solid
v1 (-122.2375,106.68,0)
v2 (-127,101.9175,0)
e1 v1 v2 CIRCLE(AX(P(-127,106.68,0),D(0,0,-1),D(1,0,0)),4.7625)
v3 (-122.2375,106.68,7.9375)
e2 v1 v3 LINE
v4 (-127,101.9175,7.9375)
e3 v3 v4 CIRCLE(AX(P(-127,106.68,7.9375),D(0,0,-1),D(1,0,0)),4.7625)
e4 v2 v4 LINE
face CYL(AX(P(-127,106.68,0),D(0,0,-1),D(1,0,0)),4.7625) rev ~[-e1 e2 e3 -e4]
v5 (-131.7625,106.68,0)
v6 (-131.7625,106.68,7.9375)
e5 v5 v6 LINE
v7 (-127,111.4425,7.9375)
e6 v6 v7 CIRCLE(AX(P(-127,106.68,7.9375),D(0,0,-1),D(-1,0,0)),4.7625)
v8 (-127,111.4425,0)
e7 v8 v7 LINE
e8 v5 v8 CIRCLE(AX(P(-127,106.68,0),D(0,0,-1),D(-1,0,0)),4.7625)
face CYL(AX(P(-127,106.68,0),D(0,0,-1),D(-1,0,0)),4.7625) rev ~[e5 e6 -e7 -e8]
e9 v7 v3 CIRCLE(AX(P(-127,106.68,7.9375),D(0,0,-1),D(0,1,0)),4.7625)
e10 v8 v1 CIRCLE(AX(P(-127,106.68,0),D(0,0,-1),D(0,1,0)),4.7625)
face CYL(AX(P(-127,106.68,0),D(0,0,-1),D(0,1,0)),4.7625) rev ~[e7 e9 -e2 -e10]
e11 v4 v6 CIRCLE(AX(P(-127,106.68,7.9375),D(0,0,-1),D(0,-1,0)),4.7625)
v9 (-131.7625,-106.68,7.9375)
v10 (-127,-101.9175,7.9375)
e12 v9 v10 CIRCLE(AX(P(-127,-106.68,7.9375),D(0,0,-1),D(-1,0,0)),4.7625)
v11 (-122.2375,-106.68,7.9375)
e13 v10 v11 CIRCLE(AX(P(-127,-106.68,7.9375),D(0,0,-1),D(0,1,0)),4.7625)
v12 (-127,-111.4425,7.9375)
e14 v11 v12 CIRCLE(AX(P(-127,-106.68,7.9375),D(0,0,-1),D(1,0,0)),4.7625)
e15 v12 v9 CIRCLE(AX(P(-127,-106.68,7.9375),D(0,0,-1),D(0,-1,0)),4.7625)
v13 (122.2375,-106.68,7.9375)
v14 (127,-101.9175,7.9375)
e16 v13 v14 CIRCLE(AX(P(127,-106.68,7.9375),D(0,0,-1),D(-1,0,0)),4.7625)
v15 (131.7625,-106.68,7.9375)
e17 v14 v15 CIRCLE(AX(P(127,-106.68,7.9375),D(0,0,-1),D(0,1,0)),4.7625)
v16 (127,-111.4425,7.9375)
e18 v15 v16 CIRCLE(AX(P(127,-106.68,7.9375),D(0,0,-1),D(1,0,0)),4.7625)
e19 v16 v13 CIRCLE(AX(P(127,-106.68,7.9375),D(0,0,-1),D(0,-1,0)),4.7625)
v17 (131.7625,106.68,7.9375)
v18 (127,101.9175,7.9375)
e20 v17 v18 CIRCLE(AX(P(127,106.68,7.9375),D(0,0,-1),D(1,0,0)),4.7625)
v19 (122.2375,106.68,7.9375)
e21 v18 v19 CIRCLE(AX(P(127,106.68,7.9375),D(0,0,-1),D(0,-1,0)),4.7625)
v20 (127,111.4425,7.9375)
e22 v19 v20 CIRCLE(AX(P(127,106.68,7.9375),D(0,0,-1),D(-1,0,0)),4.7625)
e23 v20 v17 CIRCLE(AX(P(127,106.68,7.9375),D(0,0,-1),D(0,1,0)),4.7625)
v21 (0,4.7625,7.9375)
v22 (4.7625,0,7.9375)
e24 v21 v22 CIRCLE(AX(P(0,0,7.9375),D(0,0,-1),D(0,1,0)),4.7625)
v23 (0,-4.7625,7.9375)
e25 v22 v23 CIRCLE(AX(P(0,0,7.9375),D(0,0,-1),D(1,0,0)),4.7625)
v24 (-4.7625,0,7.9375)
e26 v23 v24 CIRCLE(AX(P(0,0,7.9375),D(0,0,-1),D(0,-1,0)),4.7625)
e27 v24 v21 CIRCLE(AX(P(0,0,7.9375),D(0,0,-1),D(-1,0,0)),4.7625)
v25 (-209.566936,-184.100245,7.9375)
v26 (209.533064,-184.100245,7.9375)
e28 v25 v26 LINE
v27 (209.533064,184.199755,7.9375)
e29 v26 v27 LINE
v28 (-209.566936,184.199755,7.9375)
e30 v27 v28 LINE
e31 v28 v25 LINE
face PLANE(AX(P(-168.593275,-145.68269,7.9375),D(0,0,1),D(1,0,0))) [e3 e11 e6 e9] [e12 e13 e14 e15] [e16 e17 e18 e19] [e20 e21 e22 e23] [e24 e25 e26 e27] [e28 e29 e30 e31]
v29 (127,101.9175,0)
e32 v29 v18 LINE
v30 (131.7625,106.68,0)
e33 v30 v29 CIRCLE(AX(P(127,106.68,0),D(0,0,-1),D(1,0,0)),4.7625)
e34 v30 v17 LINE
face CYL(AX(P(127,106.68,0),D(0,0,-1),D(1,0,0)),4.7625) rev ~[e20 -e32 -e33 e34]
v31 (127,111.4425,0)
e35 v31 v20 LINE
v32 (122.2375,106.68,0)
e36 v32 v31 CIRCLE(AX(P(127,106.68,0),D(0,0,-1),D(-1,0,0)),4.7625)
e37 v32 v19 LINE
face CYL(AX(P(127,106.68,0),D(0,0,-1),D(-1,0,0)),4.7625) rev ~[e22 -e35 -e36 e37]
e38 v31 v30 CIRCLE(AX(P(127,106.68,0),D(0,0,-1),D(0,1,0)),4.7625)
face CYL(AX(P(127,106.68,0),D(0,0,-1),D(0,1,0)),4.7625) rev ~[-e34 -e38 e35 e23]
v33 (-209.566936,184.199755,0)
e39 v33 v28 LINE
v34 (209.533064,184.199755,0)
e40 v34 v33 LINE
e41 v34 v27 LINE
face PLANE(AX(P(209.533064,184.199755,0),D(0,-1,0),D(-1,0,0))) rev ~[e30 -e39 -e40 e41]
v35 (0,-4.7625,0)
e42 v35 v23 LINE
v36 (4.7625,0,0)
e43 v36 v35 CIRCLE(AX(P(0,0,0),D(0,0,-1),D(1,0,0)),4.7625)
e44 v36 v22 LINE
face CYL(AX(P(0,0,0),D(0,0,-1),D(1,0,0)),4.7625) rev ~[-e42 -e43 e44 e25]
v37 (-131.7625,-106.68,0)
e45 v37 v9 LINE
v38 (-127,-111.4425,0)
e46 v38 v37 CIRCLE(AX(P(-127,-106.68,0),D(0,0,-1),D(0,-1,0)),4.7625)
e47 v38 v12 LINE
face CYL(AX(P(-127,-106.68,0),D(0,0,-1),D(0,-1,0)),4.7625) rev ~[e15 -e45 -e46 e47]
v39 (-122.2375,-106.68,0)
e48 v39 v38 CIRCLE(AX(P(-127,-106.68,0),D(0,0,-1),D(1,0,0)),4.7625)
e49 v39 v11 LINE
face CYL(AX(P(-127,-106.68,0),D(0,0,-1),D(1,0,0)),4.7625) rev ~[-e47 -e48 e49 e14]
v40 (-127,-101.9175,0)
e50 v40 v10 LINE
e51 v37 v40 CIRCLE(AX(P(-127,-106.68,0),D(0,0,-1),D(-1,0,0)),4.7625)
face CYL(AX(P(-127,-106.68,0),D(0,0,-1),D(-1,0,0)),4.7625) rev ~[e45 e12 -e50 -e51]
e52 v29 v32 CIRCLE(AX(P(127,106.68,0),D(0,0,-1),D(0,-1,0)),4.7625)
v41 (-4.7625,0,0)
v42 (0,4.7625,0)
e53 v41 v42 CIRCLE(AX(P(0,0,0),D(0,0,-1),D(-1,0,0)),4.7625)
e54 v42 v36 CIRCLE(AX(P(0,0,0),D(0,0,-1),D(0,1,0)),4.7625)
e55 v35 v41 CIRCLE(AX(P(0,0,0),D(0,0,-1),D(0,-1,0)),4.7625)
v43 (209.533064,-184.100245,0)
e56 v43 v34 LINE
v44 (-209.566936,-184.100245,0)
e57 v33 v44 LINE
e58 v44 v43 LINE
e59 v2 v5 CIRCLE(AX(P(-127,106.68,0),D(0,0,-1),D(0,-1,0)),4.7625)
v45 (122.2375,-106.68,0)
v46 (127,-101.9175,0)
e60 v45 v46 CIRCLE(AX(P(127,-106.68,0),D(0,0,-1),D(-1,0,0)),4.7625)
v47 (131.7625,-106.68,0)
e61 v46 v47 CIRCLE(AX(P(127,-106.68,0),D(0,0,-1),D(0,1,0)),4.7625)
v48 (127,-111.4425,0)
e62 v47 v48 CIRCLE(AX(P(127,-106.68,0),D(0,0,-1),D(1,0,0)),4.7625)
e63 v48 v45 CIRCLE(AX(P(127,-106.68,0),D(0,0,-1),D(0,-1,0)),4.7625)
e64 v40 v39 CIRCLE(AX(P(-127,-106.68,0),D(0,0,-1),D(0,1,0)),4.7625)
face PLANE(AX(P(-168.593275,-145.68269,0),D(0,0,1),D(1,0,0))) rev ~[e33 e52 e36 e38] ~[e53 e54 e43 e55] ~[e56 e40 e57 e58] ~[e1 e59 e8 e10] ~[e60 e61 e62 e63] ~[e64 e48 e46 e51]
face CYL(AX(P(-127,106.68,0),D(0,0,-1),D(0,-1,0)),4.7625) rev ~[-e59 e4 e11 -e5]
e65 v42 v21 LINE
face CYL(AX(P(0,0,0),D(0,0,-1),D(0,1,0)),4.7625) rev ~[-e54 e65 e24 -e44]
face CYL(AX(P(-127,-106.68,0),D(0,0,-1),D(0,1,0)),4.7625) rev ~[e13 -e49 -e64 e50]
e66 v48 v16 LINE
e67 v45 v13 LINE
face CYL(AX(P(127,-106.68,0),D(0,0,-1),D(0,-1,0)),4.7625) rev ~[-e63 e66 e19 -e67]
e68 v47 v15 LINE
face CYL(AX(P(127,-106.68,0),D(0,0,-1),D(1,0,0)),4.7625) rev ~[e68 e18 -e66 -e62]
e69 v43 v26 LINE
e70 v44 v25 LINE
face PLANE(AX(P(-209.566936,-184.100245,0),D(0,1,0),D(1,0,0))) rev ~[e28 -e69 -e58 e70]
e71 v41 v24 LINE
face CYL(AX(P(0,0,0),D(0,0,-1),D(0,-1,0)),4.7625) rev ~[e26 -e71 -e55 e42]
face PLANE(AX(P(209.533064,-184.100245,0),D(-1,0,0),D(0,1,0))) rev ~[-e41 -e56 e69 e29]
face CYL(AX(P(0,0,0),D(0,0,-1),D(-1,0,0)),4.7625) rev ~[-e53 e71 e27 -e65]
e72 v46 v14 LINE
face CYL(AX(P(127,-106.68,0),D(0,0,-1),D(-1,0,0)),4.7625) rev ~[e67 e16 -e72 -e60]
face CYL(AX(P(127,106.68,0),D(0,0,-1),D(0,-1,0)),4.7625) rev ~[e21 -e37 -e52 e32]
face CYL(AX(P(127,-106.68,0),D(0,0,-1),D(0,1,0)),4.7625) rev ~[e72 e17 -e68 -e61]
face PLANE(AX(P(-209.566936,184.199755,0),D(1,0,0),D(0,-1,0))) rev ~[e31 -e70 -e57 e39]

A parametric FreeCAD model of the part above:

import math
import FreeCAD as App
import Part
import Sketcher

V = App.Vector
Q = App.Units.Quantity

doc = App.newDocument("Part")
body = doc.addObject("PartDesign::Body", "Body")

# Sketch on XY plane
sketch1 = body.newObject("Sketcher::SketchObject", "Sketch")
sketch1.AttachmentSupport = (doc.getObject("XY_Plane"), [""])
sketch1.MapMode = "FlatFace"
sketch1.addGeometry(Part.LineSegment(V(-209.566936, -184.100245, 0), V(209.533064, -184.100245, 0)), False)
sketch1.addGeometry(Part.LineSegment(V(209.533064, -184.100245, 0), V(209.533064, 184.199755, 0)), False)
sketch1.addGeometry(Part.LineSegment(V(209.533064, 184.199755, 0), V(-209.566936, 184.199755, 0)), False)
sketch1.addGeometry(Part.LineSegment(V(-209.566936, 184.199755, 0), V(-209.566936, -184.100245, 0)), False)
sketch1.addGeometry(Part.ArcOfCircle(Part.Circle(V(127, -106.68, 0), V(0, 0, 1), 4.7625), math.radians(180), math.radians(270)), False)
sketch1.addGeometry(Part.ArcOfCircle(Part.Circle(V(127, -106.68, 0), V(0, 0, 1), 4.7625), math.radians(90), math.radians(180)), False)
sketch1.addGeometry(Part.ArcOfCircle(Part.Circle(V(127, -106.68, 0), V(0, 0, 1), 4.7625), math.radians(0), math.radians(90)), False)
sketch1.addGeometry(Part.ArcOfCircle(Part.Circle(V(127, -106.68, 0), V(0, 0, 1), 4.7625), math.radians(-90), math.radians(0)), False)
sketch1.addGeometry(Part.ArcOfCircle(Part.Circle(V(0, 0, 0), V(0, 0, 1), 4.7625), math.radians(180), math.radians(270)), False)
sketch1.addGeometry(Part.ArcOfCircle(Part.Circle(V(0, 0, 0), V(0, 0, 1), 4.7625), math.radians(90), math.radians(180)), False)
sketch1.addGeometry(Part.ArcOfCircle(Part.Circle(V(0, 0, 0), V(0, 0, 1), 4.7625), math.radians(0), math.radians(90)), False)
sketch1.addGeometry(Part.ArcOfCircle(Part.Circle(V(0, 0, 0), V(0, 0, 1), 4.7625), math.radians(-90), math.radians(0)), False)
sketch1.addGeometry(Part.ArcOfCircle(Part.Circle(V(127, 106.68, 0), V(0, 0, 1), 4.7625), math.radians(180), math.radians(270)), False)
sketch1.addGeometry(Part.ArcOfCircle(Part.Circle(V(127, 106.68, 0), V(0, 0, 1), 4.7625), math.radians(90), math.radians(180)), False)
sketch1.addGeometry(Part.ArcOfCircle(Part.Circle(V(127, 106.68, 0), V(0, 0, 1), 4.7625), math.radians(0), math.radians(90)), False)
sketch1.addGeometry(Part.ArcOfCircle(Part.Circle(V(127, 106.68, 0), V(0, 0, 1), 4.7625), math.radians(-90), math.radians(0)), False)
sketch1.addGeometry(Part.ArcOfCircle(Part.Circle(V(-127, 106.68, 0), V(0, 0, 1), 4.7625), math.radians(0), math.radians(90)), False)
sketch1.addGeometry(Part.ArcOfCircle(Part.Circle(V(-127, 106.68, 0), V(0, 0, 1), 4.7625), math.radians(-90), math.radians(0)), False)
sketch1.addGeometry(Part.ArcOfCircle(Part.Circle(V(-127, 106.68, 0), V(0, 0, 1), 4.7625), math.radians(180), math.radians(270)), False)
sketch1.addGeometry(Part.ArcOfCircle(Part.Circle(V(-127, 106.68, 0), V(0, 0, 1), 4.7625), math.radians(90), math.radians(180)), False)
sketch1.addGeometry(Part.ArcOfCircle(Part.Circle(V(-127, -106.68, 0), V(0, 0, 1), 4.7625), math.radians(0), math.radians(90)), False)
sketch1.addGeometry(Part.ArcOfCircle(Part.Circle(V(-127, -106.68, 0), V(0, 0, 1), 4.7625), math.radians(-90), math.radians(0)), False)
sketch1.addGeometry(Part.ArcOfCircle(Part.Circle(V(-127, -106.68, 0), V(0, 0, 1), 4.7625), math.radians(180), math.radians(270)), False)
sketch1.addGeometry(Part.ArcOfCircle(Part.Circle(V(-127, -106.68, 0), V(0, 0, 1), 4.7625), math.radians(90), math.radians(180)), False)
sketch1.addConstraint(Sketcher.Constraint("Coincident", 0, 2, 1, 1))
sketch1.addConstraint(Sketcher.Constraint("Coincident", 1, 2, 2, 1))
sketch1.addConstraint(Sketcher.Constraint("Coincident", 2, 2, 3, 1))
sketch1.addConstraint(Sketcher.Constraint("Coincident", 3, 2, 0, 1))
sketch1.addConstraint(Sketcher.Constraint("Tangent", 4, 1, 5, 2))
sketch1.addConstraint(Sketcher.Constraint("Tangent", 5, 1, 6, 2))
sketch1.addConstraint(Sketcher.Constraint("Tangent", 6, 1, 7, 2))
sketch1.addConstraint(Sketcher.Constraint("Tangent", 7, 1, 4, 2))
sketch1.addConstraint(Sketcher.Constraint("Tangent", 8, 1, 9, 2))
sketch1.addConstraint(Sketcher.Constraint("Tangent", 9, 1, 10, 2))
sketch1.addConstraint(Sketcher.Constraint("Tangent", 10, 1, 11, 2))
sketch1.addConstraint(Sketcher.Constraint("Tangent", 11, 1, 8, 2))
sketch1.addConstraint(Sketcher.Constraint("Tangent", 12, 1, 13, 2))
sketch1.addConstraint(Sketcher.Constraint("Tangent", 13, 1, 14, 2))
sketch1.addConstraint(Sketcher.Constraint("Tangent", 14, 1, 15, 2))
sketch1.addConstraint(Sketcher.Constraint("Tangent", 15, 1, 12, 2))
sketch1.addConstraint(Sketcher.Constraint("Tangent", 16, 1, 17, 2))
sketch1.addConstraint(Sketcher.Constraint("Tangent", 17, 1, 18, 2))
sketch1.addConstraint(Sketcher.Constraint("Tangent", 18, 1, 19, 2))
sketch1.addConstraint(Sketcher.Constraint("Tangent", 19, 1, 16, 2))
sketch1.addConstraint(Sketcher.Constraint("Tangent", 20, 1, 21, 2))
sketch1.addConstraint(Sketcher.Constraint("Tangent", 21, 1, 22, 2))
sketch1.addConstraint(Sketcher.Constraint("Tangent", 22, 1, 23, 2))
sketch1.addConstraint(Sketcher.Constraint("Tangent", 23, 1, 20, 2))
sketch1.addConstraint(Sketcher.Constraint("Horizontal", 0))
sketch1.addConstraint(Sketcher.Constraint("Vertical", 1))
sketch1.addConstraint(Sketcher.Constraint("Horizontal", 2))
sketch1.addConstraint(Sketcher.Constraint("Vertical", 3))
sketch1.addConstraint(Sketcher.Constraint("Coincident", 8, 3, -1, 1))
sketch1.addConstraint(Sketcher.Constraint("Equal", 4, 5))
sketch1.addConstraint(Sketcher.Constraint("Equal", 7, 8))
sketch1.addConstraint(Sketcher.Constraint("Equal", 8, 9))
sketch1.addConstraint(Sketcher.Constraint("Equal", 11, 12))
sketch1.addConstraint(Sketcher.Constraint("Equal", 12, 13))
sketch1.addConstraint(Sketcher.Constraint("Equal", 15, 16))
sketch1.addConstraint(Sketcher.Constraint("Equal", 16, 17))
sketch1.addConstraint(Sketcher.Constraint("Equal", 19, 20))
sketch1.addConstraint(Sketcher.Constraint("Equal", 20, 21))
sketch1.addConstraint(Sketcher.Constraint("Symmetric", 4, 3, 16, 3, -1, 1))
sketch1.addConstraint(Sketcher.Constraint("Symmetric", 12, 3, 20, 3, -1, 1))
sketch1.addConstraint(Sketcher.Constraint("Symmetric", 12, 3, 16, 3, -2))
sketch1.addConstraint(Sketcher.Constraint("PointOnObject", 8, 1, -1))
sketch1.addConstraint(Sketcher.Constraint("PointOnObject", 9, 1, -2))
sketch1.addConstraint(Sketcher.Constraint("PointOnObject", 10, 1, -1))
sketch1.addConstraint(Sketcher.Constraint("PointOnObject", 11, 1, -2))
sketch1.addConstraint(Sketcher.Constraint("Horizontal", 23, 3, 4, 1))
sketch1.addConstraint(Sketcher.Constraint("Horizontal", 4, 1, 6, 1))
sketch1.addConstraint(Sketcher.Constraint("Horizontal", 19, 3, 12, 1))
sketch1.addConstraint(Sketcher.Constraint("Horizontal", 12, 1, 14, 1))
sketch1.addConstraint(Sketcher.Constraint("Horizontal", 14, 1, 16, 1))
sketch1.addConstraint(Sketcher.Constraint("Horizontal", 16, 1, 18, 1))
sketch1.addConstraint(Sketcher.Constraint("Horizontal", 6, 1, 20, 1))
sketch1.addConstraint(Sketcher.Constraint("Horizontal", 20, 1, 22, 1))
sketch1.addConstraint(Sketcher.Constraint("Vertical", 15, 3, 5, 1))
sketch1.addConstraint(Sketcher.Constraint("Vertical", 5, 1, 7, 1))
sketch1.addConstraint(Sketcher.Constraint("Vertical", 7, 1, 13, 1))
sketch1.addConstraint(Sketcher.Constraint("Vertical", 13, 1, 15, 1))
sketch1.addConstraint(Sketcher.Constraint("Vertical", 23, 3, 17, 1))
sketch1.addConstraint(Sketcher.Constraint("Vertical", 17, 1, 19, 1))
sketch1.addConstraint(Sketcher.Constraint("Vertical", 19, 1, 21, 1))
sketch1.addConstraint(Sketcher.Constraint("Vertical", 21, 1, 23, 1))
sketch1.addConstraint(Sketcher.Constraint("DistanceX", 0, 1, 0, 2, Q("16.5 in")))
sketch1.addConstraint(Sketcher.Constraint("DistanceY", 1, 1, 1, 2, Q("14.5 in")))
sketch1.addConstraint(Sketcher.Constraint("DistanceX", -1, 1, 4, 3, Q("5 in")))
sketch1.addConstraint(Sketcher.Constraint("Radius", 4, Q("0.1875 in")))
sketch1.addConstraint(Sketcher.Constraint("DistanceY", 4, 3, -1, 1, Q("4.2 in")))
sketch1.addConstraint(Sketcher.Constraint("DistanceX", -1, 1, 0, 2, 209.533064))
sketch1.addConstraint(Sketcher.Constraint("DistanceY", 0, 2, -1, 1, 184.100245))
pad1 = body.newObject("PartDesign::Pad", "Pad")
pad1.Profile = sketch1
pad1.Length = Q("0.3125 in")

doc.recompute()
